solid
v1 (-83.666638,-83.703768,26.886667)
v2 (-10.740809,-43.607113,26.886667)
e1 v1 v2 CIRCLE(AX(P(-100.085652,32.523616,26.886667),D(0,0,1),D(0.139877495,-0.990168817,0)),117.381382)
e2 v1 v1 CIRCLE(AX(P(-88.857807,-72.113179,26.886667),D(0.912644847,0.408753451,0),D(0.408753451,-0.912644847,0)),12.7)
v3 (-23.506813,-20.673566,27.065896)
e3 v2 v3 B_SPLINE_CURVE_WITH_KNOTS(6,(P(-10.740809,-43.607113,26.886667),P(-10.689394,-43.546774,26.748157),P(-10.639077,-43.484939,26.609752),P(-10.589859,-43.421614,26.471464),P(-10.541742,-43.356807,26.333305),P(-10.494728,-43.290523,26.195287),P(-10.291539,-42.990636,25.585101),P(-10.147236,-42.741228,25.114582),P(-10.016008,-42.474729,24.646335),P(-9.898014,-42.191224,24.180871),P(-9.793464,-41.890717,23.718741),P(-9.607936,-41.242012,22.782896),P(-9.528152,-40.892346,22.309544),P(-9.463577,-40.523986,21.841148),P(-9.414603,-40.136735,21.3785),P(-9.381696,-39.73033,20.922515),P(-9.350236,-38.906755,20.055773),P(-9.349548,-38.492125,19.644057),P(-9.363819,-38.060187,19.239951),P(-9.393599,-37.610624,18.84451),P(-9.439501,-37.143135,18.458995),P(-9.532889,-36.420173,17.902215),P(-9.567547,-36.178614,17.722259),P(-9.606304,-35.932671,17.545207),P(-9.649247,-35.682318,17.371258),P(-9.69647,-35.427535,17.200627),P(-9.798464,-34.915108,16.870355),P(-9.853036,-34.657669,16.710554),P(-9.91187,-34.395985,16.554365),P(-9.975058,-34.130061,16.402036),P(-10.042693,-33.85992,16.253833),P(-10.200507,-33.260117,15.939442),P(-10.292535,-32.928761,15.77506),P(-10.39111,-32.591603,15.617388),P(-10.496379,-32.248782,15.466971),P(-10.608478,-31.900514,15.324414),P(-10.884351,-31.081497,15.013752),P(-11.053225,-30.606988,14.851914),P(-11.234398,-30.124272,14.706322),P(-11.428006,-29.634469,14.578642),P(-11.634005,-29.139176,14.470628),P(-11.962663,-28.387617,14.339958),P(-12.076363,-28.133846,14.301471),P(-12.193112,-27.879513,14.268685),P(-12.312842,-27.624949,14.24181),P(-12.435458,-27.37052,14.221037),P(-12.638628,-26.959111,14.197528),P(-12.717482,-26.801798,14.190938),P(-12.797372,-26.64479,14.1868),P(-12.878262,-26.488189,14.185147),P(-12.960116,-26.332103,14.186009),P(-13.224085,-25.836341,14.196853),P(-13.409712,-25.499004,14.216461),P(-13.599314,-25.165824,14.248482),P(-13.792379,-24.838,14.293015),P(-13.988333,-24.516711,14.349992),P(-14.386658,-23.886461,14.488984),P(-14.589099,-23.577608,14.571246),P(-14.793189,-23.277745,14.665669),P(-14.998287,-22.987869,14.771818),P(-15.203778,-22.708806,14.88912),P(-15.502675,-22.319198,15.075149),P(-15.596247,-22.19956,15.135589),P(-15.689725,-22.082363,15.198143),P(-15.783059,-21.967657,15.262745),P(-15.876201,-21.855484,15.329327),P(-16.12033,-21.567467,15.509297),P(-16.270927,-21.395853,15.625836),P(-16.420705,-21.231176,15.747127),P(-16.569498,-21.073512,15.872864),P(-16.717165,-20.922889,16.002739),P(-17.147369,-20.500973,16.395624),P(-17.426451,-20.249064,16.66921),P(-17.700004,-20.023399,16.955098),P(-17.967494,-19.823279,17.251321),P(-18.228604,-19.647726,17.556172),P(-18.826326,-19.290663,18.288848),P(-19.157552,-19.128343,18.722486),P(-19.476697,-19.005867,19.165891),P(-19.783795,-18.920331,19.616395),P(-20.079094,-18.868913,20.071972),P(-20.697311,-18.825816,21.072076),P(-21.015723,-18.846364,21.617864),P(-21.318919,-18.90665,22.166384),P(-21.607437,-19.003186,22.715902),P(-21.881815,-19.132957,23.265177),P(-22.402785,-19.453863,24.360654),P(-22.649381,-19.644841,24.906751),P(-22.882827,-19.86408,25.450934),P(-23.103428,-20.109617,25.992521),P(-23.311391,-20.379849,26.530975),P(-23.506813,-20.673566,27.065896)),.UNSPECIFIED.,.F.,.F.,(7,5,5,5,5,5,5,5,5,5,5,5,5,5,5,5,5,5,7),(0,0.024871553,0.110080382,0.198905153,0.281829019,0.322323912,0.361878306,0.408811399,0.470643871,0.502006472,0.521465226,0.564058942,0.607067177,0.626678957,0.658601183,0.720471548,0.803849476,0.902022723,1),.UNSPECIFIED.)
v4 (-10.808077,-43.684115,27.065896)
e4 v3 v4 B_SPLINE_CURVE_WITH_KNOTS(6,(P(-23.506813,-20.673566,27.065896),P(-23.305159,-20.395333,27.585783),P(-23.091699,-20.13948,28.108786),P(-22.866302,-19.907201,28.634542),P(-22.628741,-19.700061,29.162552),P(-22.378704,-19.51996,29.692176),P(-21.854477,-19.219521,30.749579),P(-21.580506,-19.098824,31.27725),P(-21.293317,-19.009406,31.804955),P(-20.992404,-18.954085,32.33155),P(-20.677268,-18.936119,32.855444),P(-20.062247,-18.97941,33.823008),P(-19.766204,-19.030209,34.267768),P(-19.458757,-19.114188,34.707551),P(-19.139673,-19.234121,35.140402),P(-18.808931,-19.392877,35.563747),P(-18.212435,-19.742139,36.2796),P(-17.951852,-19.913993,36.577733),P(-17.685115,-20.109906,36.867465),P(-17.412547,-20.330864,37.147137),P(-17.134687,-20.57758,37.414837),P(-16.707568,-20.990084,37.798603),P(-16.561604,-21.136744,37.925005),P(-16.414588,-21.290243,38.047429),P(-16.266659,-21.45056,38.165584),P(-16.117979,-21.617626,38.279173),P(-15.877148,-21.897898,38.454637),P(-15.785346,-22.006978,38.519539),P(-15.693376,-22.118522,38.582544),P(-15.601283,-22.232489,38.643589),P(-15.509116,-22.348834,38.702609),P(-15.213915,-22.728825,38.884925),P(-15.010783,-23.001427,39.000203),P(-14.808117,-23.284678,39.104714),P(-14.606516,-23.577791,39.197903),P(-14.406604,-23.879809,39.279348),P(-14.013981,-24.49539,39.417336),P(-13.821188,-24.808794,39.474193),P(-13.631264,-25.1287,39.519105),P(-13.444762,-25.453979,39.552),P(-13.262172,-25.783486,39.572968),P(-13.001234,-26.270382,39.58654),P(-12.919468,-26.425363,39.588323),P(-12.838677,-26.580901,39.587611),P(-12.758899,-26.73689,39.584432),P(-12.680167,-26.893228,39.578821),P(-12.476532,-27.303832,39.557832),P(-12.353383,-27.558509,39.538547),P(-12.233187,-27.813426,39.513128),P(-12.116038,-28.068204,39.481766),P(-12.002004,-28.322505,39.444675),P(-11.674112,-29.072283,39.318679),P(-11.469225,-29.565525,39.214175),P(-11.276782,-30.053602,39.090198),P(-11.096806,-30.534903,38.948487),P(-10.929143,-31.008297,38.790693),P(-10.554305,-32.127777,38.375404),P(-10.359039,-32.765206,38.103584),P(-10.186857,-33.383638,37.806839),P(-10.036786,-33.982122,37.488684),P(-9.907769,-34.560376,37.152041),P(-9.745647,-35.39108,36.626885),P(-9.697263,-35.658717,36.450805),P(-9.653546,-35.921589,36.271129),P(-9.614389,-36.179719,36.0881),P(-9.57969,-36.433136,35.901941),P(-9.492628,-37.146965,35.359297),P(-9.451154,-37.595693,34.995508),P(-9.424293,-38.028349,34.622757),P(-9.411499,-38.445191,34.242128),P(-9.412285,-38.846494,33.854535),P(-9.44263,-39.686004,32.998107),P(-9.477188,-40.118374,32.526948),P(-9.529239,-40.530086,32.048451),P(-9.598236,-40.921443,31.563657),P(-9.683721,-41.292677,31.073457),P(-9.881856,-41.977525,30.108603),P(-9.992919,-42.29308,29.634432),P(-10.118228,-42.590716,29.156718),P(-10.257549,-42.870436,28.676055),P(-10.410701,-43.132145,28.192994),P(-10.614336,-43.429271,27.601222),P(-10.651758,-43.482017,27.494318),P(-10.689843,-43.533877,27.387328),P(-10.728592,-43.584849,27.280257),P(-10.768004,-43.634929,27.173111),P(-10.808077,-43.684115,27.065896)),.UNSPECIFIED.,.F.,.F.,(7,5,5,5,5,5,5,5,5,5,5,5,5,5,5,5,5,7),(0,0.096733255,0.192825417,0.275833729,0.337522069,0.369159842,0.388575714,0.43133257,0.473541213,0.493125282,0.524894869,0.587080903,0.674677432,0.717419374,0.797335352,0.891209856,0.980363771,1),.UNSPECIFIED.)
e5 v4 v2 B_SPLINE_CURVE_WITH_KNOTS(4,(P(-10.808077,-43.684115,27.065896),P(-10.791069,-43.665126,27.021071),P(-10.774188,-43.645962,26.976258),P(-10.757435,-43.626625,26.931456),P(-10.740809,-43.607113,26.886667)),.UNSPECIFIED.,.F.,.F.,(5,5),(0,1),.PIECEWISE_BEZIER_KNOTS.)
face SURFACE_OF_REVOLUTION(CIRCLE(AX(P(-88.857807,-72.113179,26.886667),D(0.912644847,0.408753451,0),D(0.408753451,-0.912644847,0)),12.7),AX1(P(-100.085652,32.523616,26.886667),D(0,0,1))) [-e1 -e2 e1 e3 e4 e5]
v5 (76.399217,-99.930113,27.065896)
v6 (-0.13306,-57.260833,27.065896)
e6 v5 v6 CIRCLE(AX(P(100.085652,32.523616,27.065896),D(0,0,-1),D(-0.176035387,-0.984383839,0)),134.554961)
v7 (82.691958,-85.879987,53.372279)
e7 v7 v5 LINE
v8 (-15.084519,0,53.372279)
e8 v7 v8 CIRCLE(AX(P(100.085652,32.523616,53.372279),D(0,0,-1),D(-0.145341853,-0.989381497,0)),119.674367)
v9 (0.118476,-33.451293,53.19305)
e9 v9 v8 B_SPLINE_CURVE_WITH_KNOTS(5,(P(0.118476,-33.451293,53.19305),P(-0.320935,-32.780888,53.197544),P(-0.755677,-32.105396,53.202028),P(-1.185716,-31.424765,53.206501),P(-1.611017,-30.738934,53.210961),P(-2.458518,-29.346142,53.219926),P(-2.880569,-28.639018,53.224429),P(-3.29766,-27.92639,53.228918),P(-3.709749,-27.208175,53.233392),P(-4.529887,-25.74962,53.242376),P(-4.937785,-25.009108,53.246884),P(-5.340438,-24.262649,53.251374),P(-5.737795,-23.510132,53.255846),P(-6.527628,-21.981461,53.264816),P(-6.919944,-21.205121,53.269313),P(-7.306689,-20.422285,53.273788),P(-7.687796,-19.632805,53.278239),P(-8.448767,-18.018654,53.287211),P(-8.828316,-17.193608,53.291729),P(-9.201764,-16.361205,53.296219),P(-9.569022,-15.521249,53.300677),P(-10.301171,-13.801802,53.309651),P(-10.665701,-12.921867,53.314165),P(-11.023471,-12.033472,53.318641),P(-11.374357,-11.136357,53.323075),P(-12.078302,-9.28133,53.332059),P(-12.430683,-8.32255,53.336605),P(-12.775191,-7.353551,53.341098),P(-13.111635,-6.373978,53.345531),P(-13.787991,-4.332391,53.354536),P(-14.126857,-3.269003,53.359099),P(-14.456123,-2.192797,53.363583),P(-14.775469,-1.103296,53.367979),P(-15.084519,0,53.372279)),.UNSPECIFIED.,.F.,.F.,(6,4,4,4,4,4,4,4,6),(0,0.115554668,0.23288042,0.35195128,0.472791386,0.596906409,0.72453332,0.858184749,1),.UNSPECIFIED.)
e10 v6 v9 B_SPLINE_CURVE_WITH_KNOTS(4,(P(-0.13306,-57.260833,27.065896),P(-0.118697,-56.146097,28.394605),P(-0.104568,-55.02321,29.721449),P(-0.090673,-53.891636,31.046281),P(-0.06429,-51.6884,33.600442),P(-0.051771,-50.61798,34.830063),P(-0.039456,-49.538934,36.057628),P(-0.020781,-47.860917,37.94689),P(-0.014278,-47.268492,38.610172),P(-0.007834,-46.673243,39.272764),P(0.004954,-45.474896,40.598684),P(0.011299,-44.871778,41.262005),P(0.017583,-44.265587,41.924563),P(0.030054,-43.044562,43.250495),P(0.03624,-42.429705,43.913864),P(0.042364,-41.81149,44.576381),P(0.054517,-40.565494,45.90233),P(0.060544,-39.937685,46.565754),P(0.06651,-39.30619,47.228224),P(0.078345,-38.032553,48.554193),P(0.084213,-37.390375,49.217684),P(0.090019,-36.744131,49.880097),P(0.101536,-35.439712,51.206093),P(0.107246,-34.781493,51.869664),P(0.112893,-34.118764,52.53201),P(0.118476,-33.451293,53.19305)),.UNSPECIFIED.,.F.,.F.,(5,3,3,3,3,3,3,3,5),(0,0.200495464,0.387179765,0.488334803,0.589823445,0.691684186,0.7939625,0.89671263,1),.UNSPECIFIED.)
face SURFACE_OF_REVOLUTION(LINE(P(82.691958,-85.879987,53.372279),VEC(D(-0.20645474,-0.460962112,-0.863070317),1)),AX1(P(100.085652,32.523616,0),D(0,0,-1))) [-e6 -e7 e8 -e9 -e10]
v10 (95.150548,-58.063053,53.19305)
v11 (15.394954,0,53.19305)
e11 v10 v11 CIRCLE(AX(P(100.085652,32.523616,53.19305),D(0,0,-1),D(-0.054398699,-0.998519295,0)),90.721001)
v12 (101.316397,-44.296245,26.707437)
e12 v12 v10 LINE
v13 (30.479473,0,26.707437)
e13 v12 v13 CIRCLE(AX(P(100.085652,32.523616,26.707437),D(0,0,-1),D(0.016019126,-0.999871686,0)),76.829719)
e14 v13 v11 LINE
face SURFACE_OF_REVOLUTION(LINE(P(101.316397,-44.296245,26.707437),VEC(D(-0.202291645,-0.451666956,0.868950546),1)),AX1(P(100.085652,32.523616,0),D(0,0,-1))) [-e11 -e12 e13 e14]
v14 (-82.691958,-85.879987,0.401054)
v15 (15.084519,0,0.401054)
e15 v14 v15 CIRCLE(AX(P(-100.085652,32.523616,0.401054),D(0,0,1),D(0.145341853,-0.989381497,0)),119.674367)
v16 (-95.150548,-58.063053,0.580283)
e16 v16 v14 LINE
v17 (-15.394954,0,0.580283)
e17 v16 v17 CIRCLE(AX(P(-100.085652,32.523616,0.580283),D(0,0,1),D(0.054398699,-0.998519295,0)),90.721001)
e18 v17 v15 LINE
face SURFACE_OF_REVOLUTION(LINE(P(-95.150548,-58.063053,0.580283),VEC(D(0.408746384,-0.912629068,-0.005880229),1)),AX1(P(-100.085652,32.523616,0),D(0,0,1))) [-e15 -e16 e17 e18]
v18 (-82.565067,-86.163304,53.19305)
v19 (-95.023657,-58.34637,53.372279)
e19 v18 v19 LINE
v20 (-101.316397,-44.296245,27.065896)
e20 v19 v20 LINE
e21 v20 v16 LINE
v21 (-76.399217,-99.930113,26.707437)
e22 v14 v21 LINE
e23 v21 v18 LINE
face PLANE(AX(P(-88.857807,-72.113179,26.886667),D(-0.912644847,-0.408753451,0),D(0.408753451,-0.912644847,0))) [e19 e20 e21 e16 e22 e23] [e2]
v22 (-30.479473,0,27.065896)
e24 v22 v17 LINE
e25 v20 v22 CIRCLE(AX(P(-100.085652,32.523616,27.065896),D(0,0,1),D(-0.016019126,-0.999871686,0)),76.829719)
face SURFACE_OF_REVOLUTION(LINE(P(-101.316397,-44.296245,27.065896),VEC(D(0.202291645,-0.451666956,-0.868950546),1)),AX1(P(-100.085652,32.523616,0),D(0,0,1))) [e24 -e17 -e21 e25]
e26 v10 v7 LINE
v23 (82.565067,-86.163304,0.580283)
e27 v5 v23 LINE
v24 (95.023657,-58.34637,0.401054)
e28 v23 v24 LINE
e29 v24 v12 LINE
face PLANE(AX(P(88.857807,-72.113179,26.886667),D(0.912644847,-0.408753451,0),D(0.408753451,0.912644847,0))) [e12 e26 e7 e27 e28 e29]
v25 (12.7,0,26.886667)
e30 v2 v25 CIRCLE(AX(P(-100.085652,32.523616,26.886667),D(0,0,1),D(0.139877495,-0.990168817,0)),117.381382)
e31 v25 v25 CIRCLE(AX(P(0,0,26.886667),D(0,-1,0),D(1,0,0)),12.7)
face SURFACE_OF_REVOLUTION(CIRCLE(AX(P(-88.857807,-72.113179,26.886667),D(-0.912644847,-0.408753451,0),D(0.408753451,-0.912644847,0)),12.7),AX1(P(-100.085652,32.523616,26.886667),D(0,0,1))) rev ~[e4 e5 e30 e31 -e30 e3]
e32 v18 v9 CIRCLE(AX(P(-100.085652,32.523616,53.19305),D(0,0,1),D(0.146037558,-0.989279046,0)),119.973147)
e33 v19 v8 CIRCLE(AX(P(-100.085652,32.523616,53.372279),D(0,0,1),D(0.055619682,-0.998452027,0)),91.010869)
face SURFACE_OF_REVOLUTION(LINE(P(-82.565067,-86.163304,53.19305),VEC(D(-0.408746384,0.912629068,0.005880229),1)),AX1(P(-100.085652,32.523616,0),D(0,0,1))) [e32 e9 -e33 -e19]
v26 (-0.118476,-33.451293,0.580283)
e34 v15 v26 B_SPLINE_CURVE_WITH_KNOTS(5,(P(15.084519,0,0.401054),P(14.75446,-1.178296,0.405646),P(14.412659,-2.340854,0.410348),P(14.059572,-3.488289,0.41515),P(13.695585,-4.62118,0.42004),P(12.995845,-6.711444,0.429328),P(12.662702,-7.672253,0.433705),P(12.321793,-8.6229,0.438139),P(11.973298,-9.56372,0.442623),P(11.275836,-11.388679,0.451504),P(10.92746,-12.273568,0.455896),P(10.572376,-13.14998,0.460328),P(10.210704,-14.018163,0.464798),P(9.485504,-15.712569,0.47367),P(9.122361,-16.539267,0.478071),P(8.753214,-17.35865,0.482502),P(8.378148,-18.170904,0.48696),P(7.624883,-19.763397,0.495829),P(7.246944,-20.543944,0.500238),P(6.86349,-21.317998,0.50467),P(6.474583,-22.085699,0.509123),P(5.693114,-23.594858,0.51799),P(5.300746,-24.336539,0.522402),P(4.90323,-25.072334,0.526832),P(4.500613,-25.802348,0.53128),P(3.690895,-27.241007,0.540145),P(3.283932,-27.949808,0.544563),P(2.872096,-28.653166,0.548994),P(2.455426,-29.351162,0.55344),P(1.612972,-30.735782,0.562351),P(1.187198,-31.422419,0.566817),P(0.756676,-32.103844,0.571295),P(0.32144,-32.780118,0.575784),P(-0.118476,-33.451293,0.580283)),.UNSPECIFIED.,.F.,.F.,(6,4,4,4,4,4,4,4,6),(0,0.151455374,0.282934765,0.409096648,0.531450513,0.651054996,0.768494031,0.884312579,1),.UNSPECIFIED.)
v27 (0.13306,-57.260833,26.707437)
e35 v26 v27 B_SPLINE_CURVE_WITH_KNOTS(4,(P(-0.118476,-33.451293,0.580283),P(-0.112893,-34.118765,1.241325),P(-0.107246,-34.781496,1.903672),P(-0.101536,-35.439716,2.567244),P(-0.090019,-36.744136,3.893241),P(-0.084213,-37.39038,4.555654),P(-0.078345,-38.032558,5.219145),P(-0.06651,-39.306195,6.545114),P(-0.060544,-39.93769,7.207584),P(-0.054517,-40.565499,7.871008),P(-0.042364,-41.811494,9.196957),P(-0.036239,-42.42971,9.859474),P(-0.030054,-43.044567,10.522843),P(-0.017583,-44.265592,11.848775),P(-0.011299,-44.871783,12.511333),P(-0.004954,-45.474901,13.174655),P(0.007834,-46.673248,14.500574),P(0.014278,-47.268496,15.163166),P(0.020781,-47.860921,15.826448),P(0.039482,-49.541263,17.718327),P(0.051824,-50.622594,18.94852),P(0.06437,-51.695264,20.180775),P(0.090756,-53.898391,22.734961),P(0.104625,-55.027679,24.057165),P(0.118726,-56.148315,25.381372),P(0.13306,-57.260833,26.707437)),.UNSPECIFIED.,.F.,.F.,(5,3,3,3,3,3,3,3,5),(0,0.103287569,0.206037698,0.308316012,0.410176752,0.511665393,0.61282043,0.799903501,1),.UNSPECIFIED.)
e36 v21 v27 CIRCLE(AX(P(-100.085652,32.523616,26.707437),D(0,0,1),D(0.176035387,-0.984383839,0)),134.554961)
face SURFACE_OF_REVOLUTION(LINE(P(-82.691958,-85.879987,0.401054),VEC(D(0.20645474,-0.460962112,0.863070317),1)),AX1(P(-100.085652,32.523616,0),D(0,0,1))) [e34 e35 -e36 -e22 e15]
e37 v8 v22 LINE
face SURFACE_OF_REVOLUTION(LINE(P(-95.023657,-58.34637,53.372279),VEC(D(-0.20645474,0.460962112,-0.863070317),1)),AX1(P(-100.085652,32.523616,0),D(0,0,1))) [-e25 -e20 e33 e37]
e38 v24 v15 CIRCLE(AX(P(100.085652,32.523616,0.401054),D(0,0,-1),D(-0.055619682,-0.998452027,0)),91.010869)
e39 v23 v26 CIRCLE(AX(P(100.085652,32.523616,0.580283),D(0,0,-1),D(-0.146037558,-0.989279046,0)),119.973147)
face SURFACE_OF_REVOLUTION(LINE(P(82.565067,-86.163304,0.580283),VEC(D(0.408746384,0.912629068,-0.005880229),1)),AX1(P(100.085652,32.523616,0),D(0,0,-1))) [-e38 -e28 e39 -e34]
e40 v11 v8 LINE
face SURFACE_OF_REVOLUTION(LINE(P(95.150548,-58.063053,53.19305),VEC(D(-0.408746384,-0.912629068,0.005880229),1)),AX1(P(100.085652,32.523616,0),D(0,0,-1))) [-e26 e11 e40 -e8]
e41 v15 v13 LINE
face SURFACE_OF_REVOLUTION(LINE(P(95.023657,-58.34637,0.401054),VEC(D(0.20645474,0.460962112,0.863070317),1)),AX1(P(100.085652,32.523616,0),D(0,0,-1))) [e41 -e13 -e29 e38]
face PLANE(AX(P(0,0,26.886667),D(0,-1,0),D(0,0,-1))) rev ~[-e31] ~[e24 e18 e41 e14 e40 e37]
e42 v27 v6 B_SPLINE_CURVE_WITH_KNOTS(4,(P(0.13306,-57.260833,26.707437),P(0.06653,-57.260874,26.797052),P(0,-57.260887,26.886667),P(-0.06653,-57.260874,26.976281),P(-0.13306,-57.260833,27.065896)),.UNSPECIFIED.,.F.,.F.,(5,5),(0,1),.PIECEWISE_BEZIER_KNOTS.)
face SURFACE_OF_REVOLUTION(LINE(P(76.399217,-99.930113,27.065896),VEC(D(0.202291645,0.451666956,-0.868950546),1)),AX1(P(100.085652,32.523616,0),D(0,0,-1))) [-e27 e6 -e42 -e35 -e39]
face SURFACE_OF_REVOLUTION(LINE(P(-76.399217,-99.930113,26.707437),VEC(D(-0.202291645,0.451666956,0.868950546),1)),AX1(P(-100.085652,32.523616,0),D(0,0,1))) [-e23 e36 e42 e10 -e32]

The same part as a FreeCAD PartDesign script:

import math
import FreeCAD as App
import Part
import Sketcher

V = App.Vector
Q = App.Units.Quantity

doc = App.newDocument("Part")
params = doc.addObject("Spreadsheet::Sheet", "Params")
for row, (alias, value) in enumerate([
    ("sketch1_diameter", "1 in"),
    ("sketch1_length", "1.2 in"),
    ("sketch3_length", "1.2 in"),
    ("sketch5_diameter", "1 in"),
], start=1):
    params.set(f"A{row}", alias)
    params.set(f"B{row}", "=" + value)
    params.setAlias(f"B{row}", alias)

body = doc.addObject("PartDesign::Body", "Body")

# Sketch on XZ plane
sketch1 = body.newObject("Sketcher::SketchObject", "Sketch")
sketch1.AttachmentSupport = (doc.getObject("XZ_Plane"), [""])
sketch1.MapMode = "FlatFace"
sketch1.addGeometry([
    Part.LineSegment(V(-30, 27, 0), V(-15, 1, 0)),  # 0
    Part.LineSegment(V(-15, 1, 0), V(15, 0, 0)),  # 1
    Part.LineSegment(V(15, 0, 0), V(30, 27, 0)),  # 2
    Part.LineSegment(V(30, 27, 0), V(15, 53, 0)),  # 3
    Part.LineSegment(V(15, 53, 0), V(-15, 53, 0)),  # 4
    Part.LineSegment(V(-15, 53, 0), V(-30, 27, 0)),  # 5
    Part.Circle(V(0, 27, 0), V(0, 0, 1), 13),  # 6
], False)
sketch1.addConstraint([
    Sketcher.Constraint("Coincident", 0, 2, 1, 1),
    Sketcher.Constraint("Coincident", 1, 2, 2, 1),
    Sketcher.Constraint("Coincident", 2, 2, 3, 1),
    Sketcher.Constraint("Coincident", 3, 2, 4, 1),
    Sketcher.Constraint("Coincident", 4, 2, 5, 1),
    Sketcher.Constraint("Coincident", 5, 2, 0, 1),
    Sketcher.Constraint("PointOnObject", 6, 3, -2),
    Sketcher.Constraint("Parallel", 0, 3),
    Sketcher.Constraint("Parallel", 1, 4),
    Sketcher.Constraint("Parallel", 2, 5),
    Sketcher.Constraint("Equal", 0, 1),
    Sketcher.Constraint("Equal", 1, 2),
    Sketcher.Constraint("Equal", 2, 3),
    Sketcher.Constraint("Diameter", 6, Q("1 in")),
    Sketcher.Constraint("Distance", 0, Q("1.2 in")),
    Sketcher.Constraint("DistanceX", -1, 1, 1, 2, 15.084519),
    Sketcher.Constraint("DistanceY", -1, 1, 3, 2, 53.19305),
    Sketcher.Constraint("DistanceX", 4, 2, -1, 1, 15.084519),
    Sketcher.Constraint("DistanceY", -1, 1, 4, 2, 53.372279),
    Sketcher.Constraint("DistanceY", 2, 2, 6, 3, 0.179229),
    Sketcher.Constraint("DistanceX", 3, 2, 2, 2, 15.084519),
])
sketch1.setExpression("Constraints[13]", "Params.sketch1_diameter")
sketch1.setExpression("Constraints[14]", "Params.sketch1_length")

# Sketch on XY plane
sketch2 = body.newObject("Sketcher::SketchObject", "Sketch001")
sketch2.AttachmentSupport = (doc.getObject("XY_Plane"), [""])
sketch2.MapMode = "FlatFace"
sketch2.addGeometry(Part.ArcOfCircle(Part.Circle(V(-100, 33, 0), V(0, 0, 1), 105), math.radians(-84), math.radians(-18)), False)
sketch2.addConstraint([
    Sketcher.Constraint("Coincident", 0, 2, -1, 1),
    Sketcher.Constraint("Radius", 0, 105.237462),
    Sketcher.Constraint("DistanceY", 0, 1, -1, 1, 72.113179),
    Sketcher.Constraint("DistanceX", 0, 3, -1, 1, 100.085652),
])
doc.recompute()

additivepipe = body.newObject("PartDesign::AdditivePipe", "AdditivePipe")
additivepipe.Profile = sketch1
additivepipe.Spine = (sketch2, ["Edge1"])

# Sketch on XZ plane
sketch3 = body.newObject("Sketcher::SketchObject", "Sketch002")
sketch3.AttachmentSupport = (doc.getObject("XZ_Plane"), [""])
sketch3.MapMode = "FlatFace"
sketch3.addGeometry([
    Part.LineSegment(V(-30, 27, 0), V(-15, 1, 0)),  # 0
    Part.LineSegment(V(-15, 1, 0), V(15, 0, 0)),  # 1
    Part.LineSegment(V(15, 0, 0), V(30, 27, 0)),  # 2
    Part.LineSegment(V(30, 27, 0), V(15, 53, 0)),  # 3
    Part.LineSegment(V(15, 53, 0), V(-15, 53, 0)),  # 4
    Part.LineSegment(V(-15, 53, 0), V(-30, 27, 0)),  # 5
], False)
sketch3.addConstraint([
    Sketcher.Constraint("Coincident", 0, 2, 1, 1),
    Sketcher.Constraint("Coincident", 1, 2, 2, 1),
    Sketcher.Constraint("Coincident", 2, 2, 3, 1),
    Sketcher.Constraint("Coincident", 3, 2, 4, 1),
    Sketcher.Constraint("Coincident", 4, 2, 5, 1),
    Sketcher.Constraint("Coincident", 5, 2, 0, 1),
    Sketcher.Constraint("Parallel", 0, 3),
    Sketcher.Constraint("Parallel", 1, 4),
    Sketcher.Constraint("Parallel", 2, 5),
    Sketcher.Constraint("Equal", 0, 1),
    Sketcher.Constraint("Equal", 1, 2),
    Sketcher.Constraint("Equal", 2, 3),
    Sketcher.Constraint("Distance", 0, Q("1.2 in")),
    Sketcher.Constraint("DistanceX", -1, 1, 1, 2, 15.084519),
    Sketcher.Constraint("DistanceY", -1, 1, 3, 2, 53.19305),
    Sketcher.Constraint("DistanceX", 4, 2, -1, 1, 15.084519),
    Sketcher.Constraint("DistanceY", -1, 1, 4, 2, 53.372279),
    Sketcher.Constraint("DistanceX", 3, 2, 2, 2, 15.084519),
])
sketch3.setExpression("Constraints[12]", "Params.sketch3_length")

# Sketch on XY plane
sketch4 = body.newObject("Sketcher::SketchObject", "Sketch003")
sketch4.AttachmentSupport = (doc.getObject("XY_Plane"), [""])
sketch4.MapMode = "FlatFace"
sketch4.addGeometry(Part.ArcOfCircle(Part.Circle(V(100, 33, 0), V(0, 0, 1), 105), math.radians(-162), math.radians(-96)), False)
sketch4.addConstraint([
    Sketcher.Constraint("Coincident", 0, 1, -1, 1),
    Sketcher.Constraint("Radius", 0, 105.237462),
    Sketcher.Constraint("DistanceY", 0, 2, -1, 1, 72.113179),
    Sketcher.Constraint("DistanceX", -1, 1, 0, 3, 100.085652),
])
doc.recompute()

additivepipe2 = body.newObject("PartDesign::AdditivePipe", "AdditivePipe001")
additivepipe2.Profile = sketch3
additivepipe2.Spine = (sketch4, ["Edge1"])

# Sketch on XZ plane
sketch5 = body.newObject("Sketcher::SketchObject", "Sketch004")
sketch5.AttachmentSupport = (doc.getObject("XZ_Plane"), [""])
sketch5.MapMode = "FlatFace"
sketch5.addGeometry(Part.Circle(V(0, 27, 0), V(0, 0, 1), 13), False)
sketch5.addConstraint([
    Sketcher.Constraint("PointOnObject", 0, 3, -2),
    Sketcher.Constraint("Diameter", 0, Q("1 in")),
    Sketcher.Constraint("DistanceY", -1, 1, 0, 3, 26.886667),
])
sketch5.setExpression("Constraints[1]", "Params.sketch5_diameter")

# Sketch on XY plane
sketch6 = body.newObject("Sketcher::SketchObject", "Sketch005")
sketch6.AttachmentSupport = (doc.getObject("XY_Plane"), [""])
sketch6.MapMode = "FlatFace"
sketch6.addGeometry(Part.ArcOfCircle(Part.Circle(V(-100, 33, 0), V(0, 0, 1), 105), math.radians(-84), math.radians(-18)), False)
sketch6.addConstraint([
    Sketcher.Constraint("Coincident", 0, 2, -1, 1),
    Sketcher.Constraint("Radius", 0, 105.237462),
    Sketcher.Constraint("DistanceY", 0, 1, -1, 1, 72.113179),
    Sketcher.Constraint("DistanceX", 0, 3, -1, 1, 100.085652),
])
doc.recompute()

subtractivepipe = body.newObject("PartDesign::SubtractivePipe", "SubtractivePipe")
subtractivepipe.Profile = sketch5
subtractivepipe.Spine = (sketch6, ["Edge1"])

doc.recompute()
